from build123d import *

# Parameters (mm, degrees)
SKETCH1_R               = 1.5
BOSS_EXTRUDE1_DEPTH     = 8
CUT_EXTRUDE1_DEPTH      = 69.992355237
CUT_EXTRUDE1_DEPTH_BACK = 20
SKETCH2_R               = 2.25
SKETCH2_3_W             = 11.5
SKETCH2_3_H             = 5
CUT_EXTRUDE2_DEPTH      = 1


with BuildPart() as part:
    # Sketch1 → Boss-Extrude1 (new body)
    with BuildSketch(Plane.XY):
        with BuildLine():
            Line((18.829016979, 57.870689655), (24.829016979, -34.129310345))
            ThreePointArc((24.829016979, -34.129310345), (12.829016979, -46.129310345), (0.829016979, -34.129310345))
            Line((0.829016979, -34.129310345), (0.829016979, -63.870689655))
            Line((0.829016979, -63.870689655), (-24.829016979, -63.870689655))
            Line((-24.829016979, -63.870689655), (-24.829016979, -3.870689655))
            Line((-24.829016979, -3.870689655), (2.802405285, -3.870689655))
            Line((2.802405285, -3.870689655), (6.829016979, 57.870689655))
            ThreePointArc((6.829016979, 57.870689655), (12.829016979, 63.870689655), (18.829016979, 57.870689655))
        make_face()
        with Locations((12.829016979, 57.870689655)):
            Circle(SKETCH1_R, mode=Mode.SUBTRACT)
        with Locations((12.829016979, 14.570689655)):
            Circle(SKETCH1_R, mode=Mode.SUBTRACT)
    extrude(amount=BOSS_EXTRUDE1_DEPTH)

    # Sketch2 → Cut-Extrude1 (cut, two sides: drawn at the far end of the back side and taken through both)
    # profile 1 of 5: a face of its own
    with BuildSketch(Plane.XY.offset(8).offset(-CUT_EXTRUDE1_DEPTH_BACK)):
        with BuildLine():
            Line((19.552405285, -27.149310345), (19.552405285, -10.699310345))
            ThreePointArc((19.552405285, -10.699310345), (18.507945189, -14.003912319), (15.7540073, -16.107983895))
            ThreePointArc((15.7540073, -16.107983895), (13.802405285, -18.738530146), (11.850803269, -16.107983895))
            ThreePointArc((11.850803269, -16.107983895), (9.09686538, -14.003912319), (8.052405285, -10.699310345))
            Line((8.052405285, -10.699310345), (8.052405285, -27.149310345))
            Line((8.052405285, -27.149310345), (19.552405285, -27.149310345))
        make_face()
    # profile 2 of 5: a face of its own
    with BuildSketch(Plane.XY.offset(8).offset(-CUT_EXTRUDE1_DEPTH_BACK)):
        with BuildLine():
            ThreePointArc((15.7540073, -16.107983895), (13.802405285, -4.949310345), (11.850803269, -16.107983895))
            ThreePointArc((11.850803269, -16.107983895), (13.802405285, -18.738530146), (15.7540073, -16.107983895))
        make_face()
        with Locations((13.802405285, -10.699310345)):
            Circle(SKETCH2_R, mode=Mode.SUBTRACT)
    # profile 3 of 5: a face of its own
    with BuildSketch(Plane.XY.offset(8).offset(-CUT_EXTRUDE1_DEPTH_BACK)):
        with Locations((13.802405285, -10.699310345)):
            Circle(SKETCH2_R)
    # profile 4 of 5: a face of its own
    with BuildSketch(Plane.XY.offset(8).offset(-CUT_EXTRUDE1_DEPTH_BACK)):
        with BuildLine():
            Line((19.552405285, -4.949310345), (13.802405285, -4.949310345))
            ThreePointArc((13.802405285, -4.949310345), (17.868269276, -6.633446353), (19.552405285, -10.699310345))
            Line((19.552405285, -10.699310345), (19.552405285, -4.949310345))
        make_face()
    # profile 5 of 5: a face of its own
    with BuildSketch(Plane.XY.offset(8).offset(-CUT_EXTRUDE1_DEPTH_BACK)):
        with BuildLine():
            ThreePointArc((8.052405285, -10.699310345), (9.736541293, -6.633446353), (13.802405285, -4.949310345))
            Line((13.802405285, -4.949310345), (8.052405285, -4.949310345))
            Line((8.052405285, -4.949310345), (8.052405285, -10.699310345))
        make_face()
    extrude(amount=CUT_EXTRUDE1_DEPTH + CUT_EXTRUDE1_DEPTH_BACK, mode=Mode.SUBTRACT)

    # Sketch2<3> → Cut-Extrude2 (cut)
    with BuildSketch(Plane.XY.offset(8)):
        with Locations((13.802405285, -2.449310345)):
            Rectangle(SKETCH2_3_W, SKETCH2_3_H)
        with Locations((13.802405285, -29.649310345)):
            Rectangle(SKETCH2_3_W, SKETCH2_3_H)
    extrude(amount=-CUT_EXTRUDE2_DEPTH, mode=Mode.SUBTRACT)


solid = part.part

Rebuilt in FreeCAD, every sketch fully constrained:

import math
import FreeCAD as App
import Part
import Sketcher


def add_polygon(sketch, points):
    """Adds a closed chain of lines whose ends are joined by coincident constraints."""
    first, n = sketch.GeometryCount, len(points)
    for a, b in zip(points, points[1:] + points[:1]):
        sketch.addGeometry(Part.LineSegment(App.Vector(*a, 0), App.Vector(*b, 0)), False)
    for i in range(n):
        sketch.addConstraint(Sketcher.Constraint("Coincident", first + i, 2, first + (i + 1) % n, 1))

doc = App.newDocument("Part")
body = doc.addObject("PartDesign::Body", "Body")

# Sketch on XY plane
sketch1 = body.newObject("Sketcher::SketchObject", "Sketch")
sketch1.AttachmentSupport = (doc.getObject("XY_Plane"), [""])
sketch1.MapMode = "FlatFace"
sketch1.addGeometry(Part.LineSegment(App.Vector(24.8, -34.1, 0), App.Vector(18.8, 57.9, 0)), False)
sketch1.addGeometry(Part.ArcOfCircle(Part.Circle(App.Vector(12.8, 57.9, 0), App.Vector(0, 0, 1), 6), math.radians(0), math.radians(180)), False)
sketch1.addGeometry(Part.LineSegment(App.Vector(6.8, 57.9, 0), App.Vector(2.8, -3.9, 0)), False)
sketch1.addGeometry(Part.LineSegment(App.Vector(2.8, -3.9, 0), App.Vector(-24.8, -3.9, 0)), False)
sketch1.addGeometry(Part.LineSegment(App.Vector(-24.8, -3.9, 0), App.Vector(-24.8, -63.9, 0)), False)
sketch1.addGeometry(Part.LineSegment(App.Vector(-24.8, -63.9, 0), App.Vector(0.8, -63.9, 0)), False)
sketch1.addGeometry(Part.LineSegment(App.Vector(0.8, -63.9, 0), App.Vector(0.8, -34.1, 0)), False)
sketch1.addGeometry(Part.ArcOfCircle(Part.Circle(App.Vector(12.8, -34.1, 0), App.Vector(0, 0, 1), 12), math.radians(180), math.radians(360)), False)
sketch1.addGeometry(Part.Circle(App.Vector(12.8, 14.6, 0), App.Vector(0, 0, 1), 1.5), False)
sketch1.addGeometry(Part.Circle(App.Vector(12.8, 57.9, 0), App.Vector(0, 0, 1), 1.5), False)
sketch1.addConstraint(Sketcher.Constraint("Coincident", 0, 2, 1, 1))
sketch1.addConstraint(Sketcher.Constraint("Coincident", 1, 2, 2, 1))
sketch1.addConstraint(Sketcher.Constraint("Coincident", 2, 2, 3, 1))
sketch1.addConstraint(Sketcher.Constraint("Coincident", 3, 2, 4, 1))
sketch1.addConstraint(Sketcher.Constraint("Coincident", 4, 2, 5, 1))
sketch1.addConstraint(Sketcher.Constraint("Coincident", 5, 2, 6, 1))
sketch1.addConstraint(Sketcher.Constraint("Tangent", 6, 2, 7, 1))
sketch1.addConstraint(Sketcher.Constraint("Coincident", 7, 2, 0, 1))
sketch1.addConstraint(Sketcher.Constraint("Horizontal", 3))
sketch1.addConstraint(Sketcher.Constraint("Vertical", 4))
sketch1.addConstraint(Sketcher.Constraint("Horizontal", 5))
sketch1.addConstraint(Sketcher.Constraint("Vertical", 6))
sketch1.addConstraint(Sketcher.Constraint("Coincident", 9, 3, 1, 3))
sketch1.addConstraint(Sketcher.Constraint("Equal", 8, 9))
sketch1.addConstraint(Sketcher.Constraint("Horizontal", 9, 3, 0, 2))
sketch1.addConstraint(Sketcher.Constraint("Horizontal", 0, 2, 1, 2))
sketch1.addConstraint(Sketcher.Constraint("Horizontal", 6, 2, 7, 2))
sketch1.addConstraint(Sketcher.Constraint("Vertical", 1, 3, 7, 3))
sketch1.addConstraint(Sketcher.Constraint("Vertical", 7, 3, 8, 3))
sketch1.addConstraint(Sketcher.Constraint("Diameter", 8, 3.0))
sketch1.addConstraint(Sketcher.Constraint("Radius", 1, 6.0))
sketch1.addConstraint(Sketcher.Constraint("Radius", 7, 12.0))
sketch1.addConstraint(Sketcher.Constraint("DistanceY", 4, 2, 4, 1, 60.0))
sketch1.addConstraint(Sketcher.Constraint("DistanceY", 7, 3, 1, 3, 92.0))
sketch1.addConstraint(Sketcher.Constraint("DistanceY", 8, 3, 1, 3, 43.3))
sketch1.addConstraint(Sketcher.Constraint("DistanceY", 6, 1, 6, 2, 29.741379))
sketch1.addConstraint(Sketcher.Constraint("DistanceX", 3, 2, 3, 1, 27.631422))
sketch1.addConstraint(Sketcher.Constraint("DistanceX", 5, 1, 5, 2, 25.658034))
sketch1.addConstraint(Sketcher.Constraint("DistanceY", -1, 1, 1, 3, 57.87069))
sketch1.addConstraint(Sketcher.Constraint("DistanceX", -1, 1, 1, 3, 12.829017))
pad1 = body.newObject("PartDesign::Pad", "Pad")
pad1.Profile = sketch1
pad1.Length = 8

# Sketch on XY plane
sketch2 = body.newObject("Sketcher::SketchObject", "Sketch001")
sketch2.AttachmentSupport = (doc.getObject("XY_Plane"), [""])
sketch2.MapMode = "FlatFace"
sketch2.AttachmentOffset = App.Placement(App.Vector(0, 0, 8), App.Rotation())
add_polygon(sketch2, [(20, -27), (20, -5), (8, -5), (8, -27)])  # lines 0-3
sketch2.addConstraint(Sketcher.Constraint("Vertical", 0))
sketch2.addConstraint(Sketcher.Constraint("Horizontal", 1))
sketch2.addConstraint(Sketcher.Constraint("Vertical", 2))
sketch2.addConstraint(Sketcher.Constraint("Horizontal", 3))
sketch2.addConstraint(Sketcher.Constraint("DistanceX", 1, 2, 1, 1, 11.5))
sketch2.addConstraint(Sketcher.Constraint("DistanceY", 0, 1, 0, 2, 22.2))
sketch2.addConstraint(Sketcher.Constraint("DistanceY", 0, 2, -1, 1, 4.94931))
sketch2.addConstraint(Sketcher.Constraint("DistanceX", -1, 1, 0, 2, 19.552405))
pocket1 = body.newObject("PartDesign::Pocket", "Pocket")
pocket1.Profile = sketch2
pocket1.Type = "ThroughAll"
pocket1.Midplane = True

# Sketch on XY plane
sketch3 = body.newObject("Sketcher::SketchObject", "Sketch002")
sketch3.AttachmentSupport = (doc.getObject("XY_Plane"), [""])
sketch3.MapMode = "FlatFace"
sketch3.AttachmentOffset = App.Placement(App.Vector(0, 0, 8), App.Rotation())
add_polygon(sketch3, [(8, 0), (8, -5), (20, -5), (20, 0)])  # lines 0-3
add_polygon(sketch3, [(8, -27), (8, -32), (20, -32), (20, -27)])  # lines 4-7
sketch3.addConstraint(Sketcher.Constraint("Vertical", 0))
sketch3.addConstraint(Sketcher.Constraint("Horizontal", 1))
sketch3.addConstraint(Sketcher.Constraint("Vertical", 2))
sketch3.addConstraint(Sketcher.Constraint("Horizontal", 3))
sketch3.addConstraint(Sketcher.Constraint("Vertical", 4))
sketch3.addConstraint(Sketcher.Constraint("Horizontal", 5))
sketch3.addConstraint(Sketcher.Constraint("Vertical", 6))
sketch3.addConstraint(Sketcher.Constraint("Horizontal", 7))
sketch3.addConstraint(Sketcher.Constraint("Vertical", 3, 2, 4, 2))
sketch3.addConstraint(Sketcher.Constraint("Vertical", 2, 2, 5, 2))
sketch3.addConstraint(Sketcher.Constraint("Equal", 2, 4))
sketch3.addConstraint(Sketcher.Constraint("DistanceY", 0, 2, 0, 1, 5.0))
sketch3.addConstraint(Sketcher.Constraint("DistanceX", 1, 1, 1, 2, 11.5))
sketch3.addConstraint(Sketcher.Constraint("DistanceY", 4, 2, 0, 2, 27.2))
sketch3.addConstraint(Sketcher.Constraint("DistanceY", 0, 2, -1, 1, 4.94931))
sketch3.addConstraint(Sketcher.Constraint("DistanceX", -1, 1, 0, 2, 8.052405))
pocket2 = body.newObject("PartDesign::Pocket", "Pocket001")
pocket2.Profile = sketch3
pocket2.Length = 1

doc.recompute()
